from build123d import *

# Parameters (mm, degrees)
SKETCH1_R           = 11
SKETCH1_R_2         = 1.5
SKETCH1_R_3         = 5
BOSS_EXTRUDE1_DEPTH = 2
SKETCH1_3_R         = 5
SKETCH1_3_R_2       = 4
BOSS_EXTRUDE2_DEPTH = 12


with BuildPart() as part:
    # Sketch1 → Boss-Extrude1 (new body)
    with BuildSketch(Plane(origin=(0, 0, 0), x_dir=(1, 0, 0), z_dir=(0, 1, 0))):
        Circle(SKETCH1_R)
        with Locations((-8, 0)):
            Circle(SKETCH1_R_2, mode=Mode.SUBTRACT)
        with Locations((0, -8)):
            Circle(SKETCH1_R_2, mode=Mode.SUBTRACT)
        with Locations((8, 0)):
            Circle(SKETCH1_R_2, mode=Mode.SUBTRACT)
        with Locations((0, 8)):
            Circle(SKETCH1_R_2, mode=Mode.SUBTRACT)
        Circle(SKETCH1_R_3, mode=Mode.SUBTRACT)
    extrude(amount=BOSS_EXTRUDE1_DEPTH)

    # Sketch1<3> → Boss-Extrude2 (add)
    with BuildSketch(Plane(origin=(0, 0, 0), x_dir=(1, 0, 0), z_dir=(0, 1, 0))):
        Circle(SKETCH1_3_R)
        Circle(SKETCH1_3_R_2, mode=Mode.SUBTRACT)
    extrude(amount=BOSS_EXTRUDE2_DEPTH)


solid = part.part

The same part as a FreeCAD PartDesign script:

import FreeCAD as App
import Part
import Sketcher
from FreeCAD import Vector

doc = App.newDocument("Part")
body = doc.addObject("PartDesign::Body", "Body")

# Sketch on XZ plane
sketch1 = body.newObject("Sketcher::SketchObject", "Sketch")
sketch1.AttachmentSupport = (doc.getObject("XZ_Plane"), [""])
sketch1.MapMode = "FlatFace"
sketch1.addGeometry([
    Part.Circle(Vector(0, 0, 0), Vector(0, 0, 1), 11),  # 0
    Part.Circle(Vector(0, 8, 0), Vector(0, 0, 1), 1.5),  # 1
    Part.Circle(Vector(-8, 0, 0), Vector(0, 0, 1), 1.5),  # 2
    Part.Circle(Vector(0, 0, 0), Vector(0, 0, 1), 5),  # 3
    Part.Circle(Vector(8, 0, 0), Vector(0, 0, 1), 1.5),  # 4
    Part.Circle(Vector(0, -8, 0), Vector(0, 0, 1), 1.5),  # 5
], False)
sketch1.addConstraint([
    Sketcher.Constraint("Coincident", 0, 3, -1, 1),
    Sketcher.Constraint("Coincident", 3, 3, -1, 1),
    Sketcher.Constraint("Equal", 1, 2),
    Sketcher.Constraint("Equal", 2, 4),
    Sketcher.Constraint("Equal", 4, 5),
    Sketcher.Constraint("Symmetric", 2, 3, 4, 3, -1, 1),
    Sketcher.Constraint("Symmetric", 1, 3, 5, 3, -1, 1),
    Sketcher.Constraint("PointOnObject", 1, 3, -2),
    Sketcher.Constraint("PointOnObject", 2, 3, -1),
    Sketcher.Constraint("Diameter", 0, 22.0),
    Sketcher.Constraint("Diameter", 1, 3.0),
    Sketcher.Constraint("Diameter", 3, 10.0),
    Sketcher.Constraint("DistanceY", -1, 1, 1, 3, 8.0),
    Sketcher.Constraint("DistanceX", 2, 3, -1, 1, 8.0),
])
pad1 = body.newObject("PartDesign::Pad", "Pad")
pad1.Profile = sketch1
pad1.Length = 2
pad1.Reversed = True

# Sketch on XZ plane
sketch2 = body.newObject("Sketcher::SketchObject", "Sketch001")
sketch2.AttachmentSupport = (doc.getObject("XZ_Plane"), [""])
sketch2.MapMode = "FlatFace"
sketch2.addGeometry([
    Part.Circle(Vector(0, 0, 0), Vector(0, 0, 1), 5),
    Part.Circle(Vector(0, 0, 0), Vector(0, 0, 1), 4),
], False)
sketch2.addConstraint([
    Sketcher.Constraint("Coincident", 0, 3, -1, 1),
    Sketcher.Constraint("Coincident", 1, 3, -1, 1),
    Sketcher.Constraint("Diameter", 0, 10.0),
    Sketcher.Constraint("Diameter", 1, 8.0),
])
pad2 = body.newObject("PartDesign::Pad", "Pad001")
pad2.Profile = sketch2
pad2.Length = 12
pad2.Reversed = True

doc.recompute()
